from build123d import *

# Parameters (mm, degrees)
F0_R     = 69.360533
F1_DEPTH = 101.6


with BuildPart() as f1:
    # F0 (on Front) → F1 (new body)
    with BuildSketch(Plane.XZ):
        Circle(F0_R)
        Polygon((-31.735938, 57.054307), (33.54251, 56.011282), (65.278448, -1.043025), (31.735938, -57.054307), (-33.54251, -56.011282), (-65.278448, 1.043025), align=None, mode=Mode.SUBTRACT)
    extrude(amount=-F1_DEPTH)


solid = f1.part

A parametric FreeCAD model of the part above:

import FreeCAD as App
import Part
import Sketcher

V = App.Vector
Q = App.Units.Quantity


def add_polygon(sketch, points):
    """Adds a closed chain of lines whose ends are joined by coincident constraints."""
    first, n = sketch.GeometryCount, len(points)
    for a, b in zip(points, points[1:] + points[:1]):
        sketch.addGeometry(Part.LineSegment(App.Vector(*a, 0), App.Vector(*b, 0)), False)
    for i in range(n):
        sketch.addConstraint(Sketcher.Constraint("Coincident", first + i, 2, first + (i + 1) % n, 1))

doc = App.newDocument("Part")
body = doc.addObject("PartDesign::Body", "Body")

sketch1 = doc.addObject("Sketcher::SketchObject", "Sketch")
body.addObject(sketch1)
sketch1.AttachmentSupport = (doc.XZ_Plane, [""])
sketch1.MapMode = "FlatFace"
sketch1.addGeometry(Part.Circle(V(0, 0, 0), V(0, 0, 1), 69), False)
add_polygon(sketch1, [(-65, 1), (-32, 57), (34, 56), (65, -1), (32, -57), (-34, -56)])
sketch1.addConstraint(Sketcher.Constraint("Coincident", 0, 3, -1, 1))
sketch1.addConstraint(Sketcher.Constraint("Symmetric", 1, 2, 4, 2, -1, 1))
sketch1.addConstraint(Sketcher.Constraint("Symmetric", 2, 2, 5, 2, -1, 1))
sketch1.addConstraint(Sketcher.Constraint("Symmetric", 3, 2, 6, 2, -1, 1))
sketch1.addConstraint(Sketcher.Constraint("Equal", 1, 2))
sketch1.addConstraint(Sketcher.Constraint("Equal", 2, 3))
sketch1.addConstraint(Sketcher.Constraint("Diameter", 0, 138.721066))
sketch1.addConstraint(Sketcher.Constraint("Distance", 1, 65.28678))
sketch1.addConstraint(Sketcher.Constraint("DistanceX", 1, 2, -1, 1, 31.735938))
sketch1.addConstraint(Sketcher.Constraint("DistanceX", -1, 1, 2, 2, 33.54251))
sketch1.addConstraint(Sketcher.Constraint("DistanceX", 4, 2, 3, 2, 33.54251))
pad1 = doc.addObject("PartDesign::Pad", "Pad")
body.addObject(pad1)
pad1.Profile = sketch1
pad1.Length = Q("4 in")
pad1.Reversed = True

doc.recompute()
